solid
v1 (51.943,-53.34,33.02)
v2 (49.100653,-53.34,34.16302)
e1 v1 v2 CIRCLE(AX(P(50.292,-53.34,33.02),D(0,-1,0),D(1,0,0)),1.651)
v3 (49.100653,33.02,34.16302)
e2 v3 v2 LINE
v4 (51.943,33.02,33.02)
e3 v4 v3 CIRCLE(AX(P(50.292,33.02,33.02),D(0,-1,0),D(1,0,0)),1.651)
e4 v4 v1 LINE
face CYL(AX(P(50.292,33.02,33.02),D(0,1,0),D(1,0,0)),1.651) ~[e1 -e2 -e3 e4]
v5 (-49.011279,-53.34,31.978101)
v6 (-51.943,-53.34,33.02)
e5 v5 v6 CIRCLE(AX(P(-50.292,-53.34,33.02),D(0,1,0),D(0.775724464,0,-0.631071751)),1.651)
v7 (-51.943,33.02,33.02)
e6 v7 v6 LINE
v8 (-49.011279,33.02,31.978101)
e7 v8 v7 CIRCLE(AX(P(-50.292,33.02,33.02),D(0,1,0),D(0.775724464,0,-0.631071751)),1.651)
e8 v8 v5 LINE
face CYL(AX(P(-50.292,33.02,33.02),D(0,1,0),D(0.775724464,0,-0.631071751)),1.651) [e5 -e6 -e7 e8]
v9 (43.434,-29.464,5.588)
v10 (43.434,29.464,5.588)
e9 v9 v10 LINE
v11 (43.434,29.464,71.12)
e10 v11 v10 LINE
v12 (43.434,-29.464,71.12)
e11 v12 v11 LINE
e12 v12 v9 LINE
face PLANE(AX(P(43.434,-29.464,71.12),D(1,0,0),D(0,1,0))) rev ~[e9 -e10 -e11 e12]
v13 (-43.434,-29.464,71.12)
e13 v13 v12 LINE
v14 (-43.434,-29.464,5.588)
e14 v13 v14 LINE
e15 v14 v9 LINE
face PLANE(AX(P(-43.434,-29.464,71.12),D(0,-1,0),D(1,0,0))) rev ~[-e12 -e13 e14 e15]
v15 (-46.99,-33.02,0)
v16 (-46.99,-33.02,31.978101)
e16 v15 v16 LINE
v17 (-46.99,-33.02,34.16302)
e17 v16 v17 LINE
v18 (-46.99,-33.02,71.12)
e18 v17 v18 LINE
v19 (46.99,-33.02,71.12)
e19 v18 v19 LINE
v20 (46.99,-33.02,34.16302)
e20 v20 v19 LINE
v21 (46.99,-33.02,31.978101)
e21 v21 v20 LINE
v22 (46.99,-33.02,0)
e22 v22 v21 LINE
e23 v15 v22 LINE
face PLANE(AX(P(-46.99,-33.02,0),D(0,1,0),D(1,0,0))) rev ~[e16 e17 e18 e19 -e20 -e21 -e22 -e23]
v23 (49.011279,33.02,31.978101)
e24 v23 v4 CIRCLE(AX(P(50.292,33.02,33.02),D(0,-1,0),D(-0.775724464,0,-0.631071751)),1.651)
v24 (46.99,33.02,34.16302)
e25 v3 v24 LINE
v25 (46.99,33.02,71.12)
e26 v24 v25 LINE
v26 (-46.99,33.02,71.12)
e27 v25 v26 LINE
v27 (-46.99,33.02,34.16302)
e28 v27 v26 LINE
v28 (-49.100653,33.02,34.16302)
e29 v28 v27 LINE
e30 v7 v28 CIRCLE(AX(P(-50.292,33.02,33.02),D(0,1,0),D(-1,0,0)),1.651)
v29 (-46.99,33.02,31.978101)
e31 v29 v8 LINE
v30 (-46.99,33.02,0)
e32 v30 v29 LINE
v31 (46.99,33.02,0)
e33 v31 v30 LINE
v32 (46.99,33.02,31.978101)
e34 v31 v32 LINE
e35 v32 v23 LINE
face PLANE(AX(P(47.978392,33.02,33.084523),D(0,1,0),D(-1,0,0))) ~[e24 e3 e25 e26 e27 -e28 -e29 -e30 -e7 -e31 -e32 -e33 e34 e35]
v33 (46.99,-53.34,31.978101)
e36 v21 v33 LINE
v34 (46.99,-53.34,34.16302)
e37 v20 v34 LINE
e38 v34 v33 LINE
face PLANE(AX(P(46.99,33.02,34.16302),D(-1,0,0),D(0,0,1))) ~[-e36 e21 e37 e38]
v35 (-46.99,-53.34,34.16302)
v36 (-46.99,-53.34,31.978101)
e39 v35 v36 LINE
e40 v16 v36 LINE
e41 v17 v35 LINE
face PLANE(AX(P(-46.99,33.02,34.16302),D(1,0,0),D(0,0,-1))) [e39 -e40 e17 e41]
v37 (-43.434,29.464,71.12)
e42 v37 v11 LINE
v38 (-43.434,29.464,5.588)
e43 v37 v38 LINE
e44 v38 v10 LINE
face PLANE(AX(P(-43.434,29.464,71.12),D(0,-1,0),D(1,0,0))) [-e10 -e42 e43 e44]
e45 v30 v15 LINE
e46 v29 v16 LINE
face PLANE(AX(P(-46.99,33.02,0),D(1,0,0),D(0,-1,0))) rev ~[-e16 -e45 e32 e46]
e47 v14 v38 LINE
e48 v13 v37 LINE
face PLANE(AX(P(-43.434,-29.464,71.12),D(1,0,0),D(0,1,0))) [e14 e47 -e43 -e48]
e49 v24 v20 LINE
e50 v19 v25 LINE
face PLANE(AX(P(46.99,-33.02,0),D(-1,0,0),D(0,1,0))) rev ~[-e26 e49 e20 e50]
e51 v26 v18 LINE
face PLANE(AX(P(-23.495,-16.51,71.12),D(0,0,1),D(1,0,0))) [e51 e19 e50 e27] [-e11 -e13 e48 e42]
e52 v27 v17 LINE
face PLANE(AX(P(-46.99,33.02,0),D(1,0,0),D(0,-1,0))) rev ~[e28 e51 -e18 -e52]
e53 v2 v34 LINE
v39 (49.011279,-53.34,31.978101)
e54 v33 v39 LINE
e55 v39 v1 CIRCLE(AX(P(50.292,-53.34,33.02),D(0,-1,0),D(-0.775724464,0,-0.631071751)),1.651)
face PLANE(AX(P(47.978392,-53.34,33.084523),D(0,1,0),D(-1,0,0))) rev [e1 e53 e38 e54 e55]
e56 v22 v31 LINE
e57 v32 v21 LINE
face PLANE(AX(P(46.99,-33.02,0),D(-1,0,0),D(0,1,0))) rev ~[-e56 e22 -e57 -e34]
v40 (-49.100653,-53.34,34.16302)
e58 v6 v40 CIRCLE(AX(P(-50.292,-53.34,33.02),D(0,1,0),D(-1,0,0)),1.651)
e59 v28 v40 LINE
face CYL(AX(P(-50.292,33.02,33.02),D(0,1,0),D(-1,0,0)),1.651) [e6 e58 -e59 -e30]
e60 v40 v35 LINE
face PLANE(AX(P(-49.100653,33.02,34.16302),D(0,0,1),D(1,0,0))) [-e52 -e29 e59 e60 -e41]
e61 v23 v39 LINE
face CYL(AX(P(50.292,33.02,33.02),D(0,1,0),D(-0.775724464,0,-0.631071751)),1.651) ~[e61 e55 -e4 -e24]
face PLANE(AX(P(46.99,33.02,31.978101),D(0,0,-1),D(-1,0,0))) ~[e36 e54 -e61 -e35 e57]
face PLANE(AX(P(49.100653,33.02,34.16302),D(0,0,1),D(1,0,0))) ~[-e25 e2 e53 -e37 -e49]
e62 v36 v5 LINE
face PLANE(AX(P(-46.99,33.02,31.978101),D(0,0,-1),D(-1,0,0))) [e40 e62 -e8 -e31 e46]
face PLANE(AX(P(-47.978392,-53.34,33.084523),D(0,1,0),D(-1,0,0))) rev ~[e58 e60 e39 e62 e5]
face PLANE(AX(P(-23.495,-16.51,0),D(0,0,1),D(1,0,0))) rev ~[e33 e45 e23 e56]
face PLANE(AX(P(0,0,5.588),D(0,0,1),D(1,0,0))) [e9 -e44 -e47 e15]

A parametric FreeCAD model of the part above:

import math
import FreeCAD as App
import Part
import Sketcher

V = App.Vector
Q = App.Units.Quantity


def add_polygon(sketch, points):
    """Adds a closed chain of lines whose ends are joined by coincident constraints."""
    first, n = sketch.GeometryCount, len(points)
    for a, b in zip(points, points[1:] + points[:1]):
        sketch.addGeometry(Part.LineSegment(App.Vector(*a, 0), App.Vector(*b, 0)), False)
    for i in range(n):
        sketch.addConstraint(Sketcher.Constraint("Coincident", first + i, 2, first + (i + 1) % n, 1))

doc = App.newDocument("Part")
params = doc.addObject("Spreadsheet::Sheet", "Params")
for row, (alias, value) in enumerate([
    ("sketch1_width", "3.7 in"),
    ("sketch1_height", "2.6 in"),
    ("pad1_length", "2.8 in"),
    ("sketch2_radius", "0.065 in"),
    ("pad2_length", "3.4 in"),
    ("sketch3_width", "3.42 in"),
    ("sketch3_height", "2.32 in"),
    ("pocket1_length", "2.58 in"),
], start=1):
    params.set(f"A{row}", alias)
    params.set(f"B{row}", "=" + value)
    params.setAlias(f"B{row}", alias)

body = doc.addObject("PartDesign::Body", "Body")

# Sketch on XY plane
sketch1 = doc.addObject("Sketcher::SketchObject", "Sketch")
body.addObject(sketch1)
sketch1.AttachmentSupport = (doc.XY_Plane, [""])
sketch1.MapMode = "FlatFace"
add_polygon(sketch1, [(-46.99, -33.02), (46.99, -33.02), (46.99, 33.02), (-46.99, 33.02)])  # lines 0-3
sketch1.addConstraint([
    Sketcher.Constraint("Horizontal", 0),
    Sketcher.Constraint("Vertical", 1),
    Sketcher.Constraint("Horizontal", 2),
    Sketcher.Constraint("Vertical", 3),
    Sketcher.Constraint("Symmetric", 0, 2, 2, 2, -1, 1),
    Sketcher.Constraint("DistanceX", 0, 1, 0, 2, Q("3.7 in")),
    Sketcher.Constraint("DistanceY", 1, 1, 1, 2, Q("2.6 in")),
])
sketch1.setExpression("Constraints[9]", "Params.sketch1_width")
sketch1.setExpression("Constraints[10]", "Params.sketch1_height")
pad1 = doc.addObject("PartDesign::Pad", "Pad")
body.addObject(pad1)
pad1.Profile = sketch1
pad1.setExpression("Length", "Params.pad1_length")

# Sketch on XZ plane
sketch2 = doc.addObject("Sketcher::SketchObject", "Sketch001")
body.addObject(sketch2)
sketch2.AttachmentSupport = (doc.XZ_Plane, [""])
sketch2.MapMode = "FlatFace"
sketch2.AttachmentOffset = App.Placement(V(0, 0, -1.3 * 25.4), App.Rotation())
sketch2.addGeometry([
    Part.LineSegment(V(-49.100653, 34.16302, 0), V(-46.99, 34.16302, 0)),  # 0
    Part.LineSegment(V(-46.99, 34.16302, 0), V(-46.99, 31.978101, 0)),  # 1
    Part.LineSegment(V(-46.99, 31.978101, 0), V(-49.011279, 31.978101, 0)),  # 2
    Part.ArcOfCircle(Part.Circle(V(-50.292, 33.02, 0), V(0, 0, 1), 1.651), math.radians(180), math.radians(320.870761)),  # 3
    Part.ArcOfCircle(Part.Circle(V(-50.292, 33.02, 0), V(0, 0, 1), 1.651), math.radians(43.814007), math.radians(180)),  # 4
], False)
sketch2.addConstraint([
    Sketcher.Constraint("Coincident", 0, 2, 1, 1),
    Sketcher.Constraint("Coincident", 1, 2, 2, 1),
    Sketcher.Constraint("Coincident", 2, 2, 3, 2),
    Sketcher.Constraint("Tangent", 3, 1, 4, 2),
    Sketcher.Constraint("Coincident", 4, 1, 0, 1),
    Sketcher.Constraint("Horizontal", 0),
    Sketcher.Constraint("Vertical", 1),
    Sketcher.Constraint("Horizontal", 2),
    Sketcher.Constraint("Equal", 3, 4),
    Sketcher.Constraint("Horizontal", 4, 3, 3, 1),
    Sketcher.Constraint("Radius", 3, Q("0.065 in")),
    Sketcher.Constraint("DistanceY", -1, 1, 3, 3, Q("1.3 in")),
    Sketcher.Constraint("DistanceX", 3, 3, -1, 1, Q("1.98 in")),
    Sketcher.Constraint("DistanceX", 0, 2, -1, 1, Q("1.85 in")),
    Sketcher.Constraint("DistanceX", 2, 2, 2, 1, 2.021279),
    Sketcher.Constraint("DistanceY", 1, 2, 1, 1, 2.184919),
])
sketch2.setExpression("Constraints[10]", "Params.sketch2_radius")
pad2 = doc.addObject("PartDesign::Pad", "Pad001")
body.addObject(pad2)
pad2.Profile = sketch2
pad2.setExpression("Length", "Params.pad2_length")
body2 = doc.addObject("PartDesign::Body", "Body001")
doc.recompute()

body2.BaseFeature = body
doc.recompute()

mirroring = doc.addObject("Part::Mirroring", "Mirroring")
mirroring.Source = body
mirroring.Base = V(0, 0, 0)
mirroring.Normal = V(1, 0, 0)
body3 = doc.addObject("PartDesign::Body", "Body002")
body3.BaseFeature = mirroring
boolean = doc.addObject("PartDesign::Boolean", "Boolean")
body2.addObject(boolean)
boolean.Type = "Fuse"
boolean.addObjects([body3])
doc.recompute()

# Sketch on XY plane
sketch3 = doc.addObject("Sketcher::SketchObject", "Sketch002")
body2.addObject(sketch3)
sketch3.AttachmentSupport = (doc.getObject("XY_Plane001"), [""])
sketch3.MapMode = "FlatFace"
sketch3.AttachmentOffset = App.Placement(V(0, 0, 2.8 * 25.4), App.Rotation())
add_polygon(sketch3, [(-43.434, 29.464), (-43.434, -29.464), (43.434, -29.464), (43.434, 29.464)])  # lines 0-3
sketch3.addConstraint([
    Sketcher.Constraint("Vertical", 0),
    Sketcher.Constraint("Horizontal", 1),
    Sketcher.Constraint("Vertical", 2),
    Sketcher.Constraint("Horizontal", 3),
    Sketcher.Constraint("Symmetric", 0, 2, 2, 2, -1, 1),
    Sketcher.Constraint("DistanceX", 1, 1, 1, 2, Q("3.42 in")),
    Sketcher.Constraint("DistanceY", 0, 2, 0, 1, Q("2.32 in")),
])
sketch3.setExpression("Constraints[9]", "Params.sketch3_width")
sketch3.setExpression("Constraints[10]", "Params.sketch3_height")
pocket1 = doc.addObject("PartDesign::Pocket", "Pocket")
body2.addObject(pocket1)
pocket1.Profile = sketch3
pocket1.setExpression("Length", "Params.pocket1_length")
mirroring.Visibility = False

doc.recompute()
